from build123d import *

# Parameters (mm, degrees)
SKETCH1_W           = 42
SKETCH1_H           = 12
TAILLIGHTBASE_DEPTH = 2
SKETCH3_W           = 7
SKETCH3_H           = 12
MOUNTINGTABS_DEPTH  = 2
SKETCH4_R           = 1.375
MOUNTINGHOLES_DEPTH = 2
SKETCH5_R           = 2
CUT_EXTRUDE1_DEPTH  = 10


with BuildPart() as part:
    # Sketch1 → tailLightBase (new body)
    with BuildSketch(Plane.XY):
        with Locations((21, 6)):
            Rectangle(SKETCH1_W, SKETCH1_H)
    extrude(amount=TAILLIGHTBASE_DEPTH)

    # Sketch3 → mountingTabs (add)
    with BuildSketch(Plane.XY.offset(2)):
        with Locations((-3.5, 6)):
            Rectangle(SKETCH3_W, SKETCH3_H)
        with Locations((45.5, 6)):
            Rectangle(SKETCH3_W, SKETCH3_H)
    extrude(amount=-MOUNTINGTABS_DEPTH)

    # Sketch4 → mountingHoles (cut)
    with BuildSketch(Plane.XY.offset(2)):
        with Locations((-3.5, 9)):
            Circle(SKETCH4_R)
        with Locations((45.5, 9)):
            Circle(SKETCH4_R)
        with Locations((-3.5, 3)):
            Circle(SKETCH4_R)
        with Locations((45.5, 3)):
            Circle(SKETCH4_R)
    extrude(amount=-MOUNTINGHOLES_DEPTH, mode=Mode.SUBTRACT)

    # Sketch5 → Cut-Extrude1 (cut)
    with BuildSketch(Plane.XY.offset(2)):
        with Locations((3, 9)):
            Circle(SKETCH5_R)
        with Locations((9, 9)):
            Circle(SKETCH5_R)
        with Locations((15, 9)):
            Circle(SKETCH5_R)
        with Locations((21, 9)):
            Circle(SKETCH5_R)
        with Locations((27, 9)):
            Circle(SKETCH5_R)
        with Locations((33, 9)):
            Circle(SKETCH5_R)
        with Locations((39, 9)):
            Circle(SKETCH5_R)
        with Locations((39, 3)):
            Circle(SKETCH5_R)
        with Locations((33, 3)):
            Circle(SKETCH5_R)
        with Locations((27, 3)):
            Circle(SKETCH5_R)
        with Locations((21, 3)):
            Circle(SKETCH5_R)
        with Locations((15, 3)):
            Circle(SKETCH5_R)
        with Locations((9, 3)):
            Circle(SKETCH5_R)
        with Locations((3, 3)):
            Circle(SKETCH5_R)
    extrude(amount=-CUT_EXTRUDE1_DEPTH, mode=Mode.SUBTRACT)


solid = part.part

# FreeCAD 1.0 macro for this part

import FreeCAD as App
import Part
import Sketcher
from FreeCAD import Vector
Q = App.Units.Quantity

doc = App.newDocument("Part")
body = doc.addObject("PartDesign::Body", "Body")

# Sketch on XY plane
sketch1 = body.newObject("Sketcher::SketchObject", "Sketch")
sketch1.AttachmentSupport = (doc.getObject("XY_Plane"), [""])
sketch1.MapMode = "FlatFace"
sketch1.addGeometry([
    Part.LineSegment(Vector(0, 12, 0), Vector(0, 0, 0)),
    Part.LineSegment(Vector(0, 0, 0), Vector(42, 0, 0)),
    Part.LineSegment(Vector(42, 0, 0), Vector(42, 12, 0)),
    Part.LineSegment(Vector(42, 12, 0), Vector(0, 12, 0)),
], False)
sketch1.addConstraint([
    Sketcher.Constraint("Coincident", 0, 2, 1, 1),
    Sketcher.Constraint("Coincident", 1, 2, 2, 1),
    Sketcher.Constraint("Coincident", 2, 2, 3, 1),
    Sketcher.Constraint("Coincident", 3, 2, 0, 1),
    Sketcher.Constraint("Vertical", 0),
    Sketcher.Constraint("Horizontal", 1),
    Sketcher.Constraint("Vertical", 2),
    Sketcher.Constraint("Horizontal", 3),
    Sketcher.Constraint("Coincident", 0, 2, -1, 1),
    Sketcher.Constraint("DistanceX", 1, 1, 1, 2, Q("42 mm")),
    Sketcher.Constraint("DistanceY", 0, 2, 0, 1, Q("12 mm")),
])
pad1 = body.newObject("PartDesign::Pad", "Pad")
pad1.Profile = sketch1
pad1.Length = 2

# Sketch on XY plane
sketch2 = body.newObject("Sketcher::SketchObject", "Sketch001")
sketch2.AttachmentSupport = (doc.getObject("XY_Plane"), [""])
sketch2.MapMode = "FlatFace"
sketch2.AttachmentOffset = App.Placement(Vector(0, 0, 2), App.Rotation())
sketch2.addGeometry([
    Part.LineSegment(Vector(-7, 12, 0), Vector(-7, 0, 0)),  # 0
    Part.LineSegment(Vector(-7, 0, 0), Vector(0, 0, 0)),  # 1
    Part.LineSegment(Vector(0, 0, 0), Vector(0, 12, 0)),  # 2
    Part.LineSegment(Vector(0, 12, 0), Vector(-7, 12, 0)),  # 3
    Part.LineSegment(Vector(42, 12, 0), Vector(42, 0, 0)),  # 4
    Part.LineSegment(Vector(42, 0, 0), Vector(49, 0, 0)),  # 5
    Part.LineSegment(Vector(49, 0, 0), Vector(49, 12, 0)),  # 6
    Part.LineSegment(Vector(49, 12, 0), Vector(42, 12, 0)),  # 7
], False)
sketch2.addConstraint([
    Sketcher.Constraint("Coincident", 0, 2, 1, 1),
    Sketcher.Constraint("Coincident", 1, 2, 2, 1),
    Sketcher.Constraint("Coincident", 2, 2, 3, 1),
    Sketcher.Constraint("Coincident", 3, 2, 0, 1),
    Sketcher.Constraint("Coincident", 4, 2, 5, 1),
    Sketcher.Constraint("Coincident", 5, 2, 6, 1),
    Sketcher.Constraint("Coincident", 6, 2, 7, 1),
    Sketcher.Constraint("Coincident", 7, 2, 4, 1),
    Sketcher.Constraint("Vertical", 0),
    Sketcher.Constraint("Horizontal", 1),
    Sketcher.Constraint("Vertical", 2),
    Sketcher.Constraint("Horizontal", 3),
    Sketcher.Constraint("Vertical", 4),
    Sketcher.Constraint("Horizontal", 5),
    Sketcher.Constraint("Vertical", 6),
    Sketcher.Constraint("Horizontal", 7),
    Sketcher.Constraint("Coincident", 1, 2, -1, 1),
    Sketcher.Constraint("PointOnObject", 4, 2, -1),
    Sketcher.Constraint("Horizontal", 3, 2, 6, 2),
    Sketcher.Constraint("Equal", 3, 5),
    Sketcher.Constraint("DistanceX", 1, 1, 1, 2, Q("7 mm")),
    Sketcher.Constraint("DistanceY", 0, 2, 0, 1, Q("12 mm")),
    Sketcher.Constraint("DistanceX", -1, 1, 4, 2, Q("42 mm")),
])
pad2 = body.newObject("PartDesign::Pad", "Pad001")
pad2.Profile = sketch2
pad2.Length = 2
pad2.Reversed = True

# Sketch on XY plane
sketch3 = body.newObject("Sketcher::SketchObject", "Sketch002")
sketch3.AttachmentSupport = (doc.getObject("XY_Plane"), [""])
sketch3.MapMode = "FlatFace"
sketch3.AttachmentOffset = App.Placement(Vector(0, 0, 2), App.Rotation())
sketch3.addGeometry([
    Part.Circle(Vector(-3.5, 9, 0), Vector(0, 0, 1), 1.4),
    Part.Circle(Vector(45.5, 9, 0), Vector(0, 0, 1), 1.4),
    Part.Circle(Vector(-3.5, 3, 0), Vector(0, 0, 1), 1.4),
    Part.Circle(Vector(45.5, 3, 0), Vector(0, 0, 1), 1.4),
], False)
sketch3.addConstraint([
    Sketcher.Constraint("Equal", 0, 1),
    Sketcher.Constraint("Equal", 1, 2),
    Sketcher.Constraint("Equal", 2, 3),
    Sketcher.Constraint("Horizontal", 0, 3, 1, 3),
    Sketcher.Constraint("Horizontal", 2, 3, 3, 3),
    Sketcher.Constraint("Vertical", 0, 3, 2, 3),
    Sketcher.Constraint("Vertical", 1, 3, 3, 3),
    Sketcher.Constraint("Diameter", 0, Q("2.75 mm")),
    Sketcher.Constraint("DistanceY", -1, 1, 0, 3, Q("9 mm")),
    Sketcher.Constraint("DistanceY", -1, 1, 2, 3, Q("3 mm")),
    Sketcher.Constraint("DistanceX", 0, 3, 1, 3, Q("49 mm")),
    Sketcher.Constraint("DistanceX", 0, 3, -1, 1, Q("3.5 mm")),
])
pocket1 = body.newObject("PartDesign::Pocket", "Pocket")
pocket1.Profile = sketch3
pocket1.Length = 2

# Sketch on XY plane
sketch4 = body.newObject("Sketcher::SketchObject", "Sketch003")
sketch4.AttachmentSupport = (doc.getObject("XY_Plane"), [""])
sketch4.MapMode = "FlatFace"
sketch4.AttachmentOffset = App.Placement(Vector(0, 0, 2), App.Rotation())
sketch4.addGeometry([
    Part.Circle(Vector(3, 9, 0), Vector(0, 0, 1), 2),  # 0
    Part.Circle(Vector(9, 9, 0), Vector(0, 0, 1), 2),  # 1
    Part.Circle(Vector(15, 9, 0), Vector(0, 0, 1), 2),  # 2
    Part.Circle(Vector(21, 9, 0), Vector(0, 0, 1), 2),  # 3
    Part.Circle(Vector(27, 9, 0), Vector(0, 0, 1), 2),  # 4
    Part.Circle(Vector(33, 9, 0), Vector(0, 0, 1), 2),  # 5
    Part.Circle(Vector(39, 9, 0), Vector(0, 0, 1), 2),  # 6
    Part.Circle(Vector(39, 3, 0), Vector(0, 0, 1), 2),  # 7
    Part.Circle(Vector(33, 3, 0), Vector(0, 0, 1), 2),  # 8
    Part.Circle(Vector(27, 3, 0), Vector(0, 0, 1), 2),  # 9
    Part.Circle(Vector(21, 3, 0), Vector(0, 0, 1), 2),  # 10
    Part.Circle(Vector(15, 3, 0), Vector(0, 0, 1), 2),  # 11
    Part.Circle(Vector(9, 3, 0), Vector(0, 0, 1), 2),  # 12
    Part.Circle(Vector(3, 3, 0), Vector(0, 0, 1), 2),  # 13
], False)
sketch4.addConstraint([
    Sketcher.Constraint("Equal", 0, 1),
    Sketcher.Constraint("Equal", 1, 2),
    Sketcher.Constraint("Equal", 2, 3),
    Sketcher.Constraint("Equal", 3, 4),
    Sketcher.Constraint("Equal", 4, 5),
    Sketcher.Constraint("Equal", 5, 6),
    Sketcher.Constraint("Equal", 6, 7),
    Sketcher.Constraint("Equal", 7, 8),
    Sketcher.Constraint("Equal", 8, 9),
    Sketcher.Constraint("Equal", 9, 10),
    Sketcher.Constraint("Equal", 10, 11),
    Sketcher.Constraint("Equal", 11, 12),
    Sketcher.Constraint("Equal", 12, 13),
    Sketcher.Constraint("Horizontal", 0, 3, 1, 3),
    Sketcher.Constraint("Horizontal", 1, 3, 2, 3),
    Sketcher.Constraint("Horizontal", 2, 3, 3, 3),
    Sketcher.Constraint("Horizontal", 3, 3, 4, 3),
    Sketcher.Constraint("Horizontal", 4, 3, 5, 3),
    Sketcher.Constraint("Horizontal", 5, 3, 6, 3),
    Sketcher.Constraint("Horizontal", 7, 3, 8, 3),
    Sketcher.Constraint("Horizontal", 8, 3, 9, 3),
    Sketcher.Constraint("Horizontal", 9, 3, 10, 3),
    Sketcher.Constraint("Horizontal", 10, 3, 11, 3),
    Sketcher.Constraint("Horizontal", 11, 3, 12, 3),
    Sketcher.Constraint("Horizontal", 12, 3, 13, 3),
    Sketcher.Constraint("Vertical", 6, 3, 7, 3),
    Sketcher.Constraint("Vertical", 5, 3, 8, 3),
    Sketcher.Constraint("Vertical", 4, 3, 9, 3),
    Sketcher.Constraint("Vertical", 3, 3, 10, 3),
    Sketcher.Constraint("Vertical", 2, 3, 11, 3),
    Sketcher.Constraint("Vertical", 1, 3, 12, 3),
    Sketcher.Constraint("Vertical", 0, 3, 13, 3),
    Sketcher.Constraint("Diameter", 0, Q("4 mm")),
    Sketcher.Constraint("DistanceX", -1, 1, 0, 3, Q("3 mm")),
    Sketcher.Constraint("DistanceY", -1, 1, 0, 3, Q("9 mm")),
    Sketcher.Constraint("DistanceX", -1, 1, 1, 3, Q("9 mm")),
    Sketcher.Constraint("DistanceX", -1, 1, 2, 3, Q("15 mm")),
    Sketcher.Constraint("DistanceX", -1, 1, 3, 3, Q("21 mm")),
    Sketcher.Constraint("DistanceX", -1, 1, 4, 3, Q("27 mm")),
    Sketcher.Constraint("DistanceX", -1, 1, 5, 3, Q("33 mm")),
    Sketcher.Constraint("DistanceX", -1, 1, 6, 3, Q("39 mm")),
    Sketcher.Constraint("DistanceY", -1, 1, 7, 3, Q("3 mm")),
])
pocket2 = body.newObject("PartDesign::Pocket", "Pocket001")
pocket2.Profile = sketch4
pocket2.Length = 10

doc.recompute()
